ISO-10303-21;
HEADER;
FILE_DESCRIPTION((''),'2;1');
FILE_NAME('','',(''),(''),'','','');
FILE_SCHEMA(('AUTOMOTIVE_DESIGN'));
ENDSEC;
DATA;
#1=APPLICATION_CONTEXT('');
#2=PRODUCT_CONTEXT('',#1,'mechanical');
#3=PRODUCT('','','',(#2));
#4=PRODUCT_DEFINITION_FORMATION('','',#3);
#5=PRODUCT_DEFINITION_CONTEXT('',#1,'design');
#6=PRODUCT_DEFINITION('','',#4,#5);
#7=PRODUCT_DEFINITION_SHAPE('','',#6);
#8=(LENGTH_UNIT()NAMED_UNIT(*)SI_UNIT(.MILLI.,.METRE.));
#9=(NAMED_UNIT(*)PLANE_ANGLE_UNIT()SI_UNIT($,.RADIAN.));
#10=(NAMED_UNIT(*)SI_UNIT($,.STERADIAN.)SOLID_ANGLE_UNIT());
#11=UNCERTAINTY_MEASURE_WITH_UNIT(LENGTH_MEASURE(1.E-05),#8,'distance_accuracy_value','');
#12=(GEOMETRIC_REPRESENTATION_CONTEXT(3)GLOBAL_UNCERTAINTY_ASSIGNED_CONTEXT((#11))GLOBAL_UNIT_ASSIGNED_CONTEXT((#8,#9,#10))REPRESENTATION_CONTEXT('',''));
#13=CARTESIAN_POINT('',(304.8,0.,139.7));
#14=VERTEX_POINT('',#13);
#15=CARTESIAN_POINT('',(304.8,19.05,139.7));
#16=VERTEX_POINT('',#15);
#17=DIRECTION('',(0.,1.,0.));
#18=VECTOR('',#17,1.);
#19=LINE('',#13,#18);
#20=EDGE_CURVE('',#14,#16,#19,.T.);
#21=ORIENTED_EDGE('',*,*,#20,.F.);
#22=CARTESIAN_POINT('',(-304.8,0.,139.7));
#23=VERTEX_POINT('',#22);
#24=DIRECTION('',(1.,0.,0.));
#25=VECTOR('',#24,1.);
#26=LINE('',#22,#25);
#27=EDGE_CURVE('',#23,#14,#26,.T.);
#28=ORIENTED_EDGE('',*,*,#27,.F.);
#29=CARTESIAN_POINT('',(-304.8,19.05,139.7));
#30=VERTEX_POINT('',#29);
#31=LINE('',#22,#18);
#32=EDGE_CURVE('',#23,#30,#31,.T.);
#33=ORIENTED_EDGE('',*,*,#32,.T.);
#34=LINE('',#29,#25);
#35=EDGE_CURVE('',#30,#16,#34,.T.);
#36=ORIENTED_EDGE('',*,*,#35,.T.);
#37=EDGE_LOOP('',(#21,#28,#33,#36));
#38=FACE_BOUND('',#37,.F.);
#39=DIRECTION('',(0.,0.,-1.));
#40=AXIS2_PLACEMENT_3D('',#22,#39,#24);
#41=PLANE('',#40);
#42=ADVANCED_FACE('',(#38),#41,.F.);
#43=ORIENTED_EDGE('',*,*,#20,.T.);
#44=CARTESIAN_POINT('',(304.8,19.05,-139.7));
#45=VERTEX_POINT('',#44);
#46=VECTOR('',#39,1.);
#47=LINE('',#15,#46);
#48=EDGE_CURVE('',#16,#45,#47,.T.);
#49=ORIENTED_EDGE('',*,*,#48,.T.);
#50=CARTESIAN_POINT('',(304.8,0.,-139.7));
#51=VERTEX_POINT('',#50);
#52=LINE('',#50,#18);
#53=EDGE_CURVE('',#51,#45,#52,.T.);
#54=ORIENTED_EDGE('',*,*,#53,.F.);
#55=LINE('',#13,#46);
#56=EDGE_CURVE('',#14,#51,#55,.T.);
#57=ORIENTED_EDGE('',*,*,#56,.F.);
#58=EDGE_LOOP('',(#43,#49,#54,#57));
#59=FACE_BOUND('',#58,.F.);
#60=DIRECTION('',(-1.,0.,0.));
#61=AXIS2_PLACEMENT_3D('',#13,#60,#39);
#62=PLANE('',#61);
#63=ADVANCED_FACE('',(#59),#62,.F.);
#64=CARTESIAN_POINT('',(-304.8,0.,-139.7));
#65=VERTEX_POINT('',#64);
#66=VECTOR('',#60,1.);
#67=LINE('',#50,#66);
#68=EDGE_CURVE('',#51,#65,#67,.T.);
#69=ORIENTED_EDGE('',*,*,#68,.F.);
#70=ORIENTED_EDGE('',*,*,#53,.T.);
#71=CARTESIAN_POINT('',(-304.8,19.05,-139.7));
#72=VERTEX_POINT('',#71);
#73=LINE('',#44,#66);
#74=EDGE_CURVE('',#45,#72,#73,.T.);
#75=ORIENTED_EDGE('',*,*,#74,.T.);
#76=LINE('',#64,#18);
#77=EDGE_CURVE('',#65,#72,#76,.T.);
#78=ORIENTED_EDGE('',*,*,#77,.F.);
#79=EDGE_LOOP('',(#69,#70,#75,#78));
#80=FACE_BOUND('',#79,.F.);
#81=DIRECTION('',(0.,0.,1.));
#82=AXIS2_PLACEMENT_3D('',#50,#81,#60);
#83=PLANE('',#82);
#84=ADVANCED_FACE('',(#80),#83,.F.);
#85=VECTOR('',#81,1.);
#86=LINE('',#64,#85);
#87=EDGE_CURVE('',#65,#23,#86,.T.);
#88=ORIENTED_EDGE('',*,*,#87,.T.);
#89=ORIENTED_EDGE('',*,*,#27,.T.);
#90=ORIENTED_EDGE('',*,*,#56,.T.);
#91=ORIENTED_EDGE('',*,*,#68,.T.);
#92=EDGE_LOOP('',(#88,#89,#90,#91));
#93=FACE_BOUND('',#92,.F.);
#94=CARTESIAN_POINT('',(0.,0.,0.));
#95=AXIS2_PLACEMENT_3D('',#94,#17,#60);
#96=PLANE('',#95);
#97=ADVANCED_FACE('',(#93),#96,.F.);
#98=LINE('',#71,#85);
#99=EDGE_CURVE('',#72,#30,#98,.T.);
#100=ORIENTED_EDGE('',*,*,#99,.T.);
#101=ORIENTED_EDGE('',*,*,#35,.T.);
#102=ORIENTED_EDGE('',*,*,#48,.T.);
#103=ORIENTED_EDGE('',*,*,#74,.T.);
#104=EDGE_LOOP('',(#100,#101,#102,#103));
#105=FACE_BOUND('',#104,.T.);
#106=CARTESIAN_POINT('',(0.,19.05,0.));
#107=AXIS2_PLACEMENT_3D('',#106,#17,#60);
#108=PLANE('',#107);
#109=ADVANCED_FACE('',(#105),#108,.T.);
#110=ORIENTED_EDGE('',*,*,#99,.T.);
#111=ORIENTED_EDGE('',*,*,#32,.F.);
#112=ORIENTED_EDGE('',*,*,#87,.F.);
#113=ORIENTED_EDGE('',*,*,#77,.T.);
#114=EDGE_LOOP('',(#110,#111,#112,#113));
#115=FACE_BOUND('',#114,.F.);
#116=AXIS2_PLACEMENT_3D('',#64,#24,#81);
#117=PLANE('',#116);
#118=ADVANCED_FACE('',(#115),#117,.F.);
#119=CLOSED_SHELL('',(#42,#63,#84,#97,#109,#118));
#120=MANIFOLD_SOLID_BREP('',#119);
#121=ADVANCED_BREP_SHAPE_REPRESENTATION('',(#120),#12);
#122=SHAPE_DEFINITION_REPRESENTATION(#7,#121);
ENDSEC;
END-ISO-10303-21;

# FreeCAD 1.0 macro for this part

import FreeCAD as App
import Part
import Sketcher
from FreeCAD import Vector
Q = App.Units.Quantity

doc = App.newDocument("Part")
body = doc.addObject("PartDesign::Body", "Body")

# Sketch on XZ plane
sketch1 = body.newObject("Sketcher::SketchObject", "Sketch")
sketch1.AttachmentSupport = (doc.getObject("XZ_Plane"), [""])
sketch1.MapMode = "FlatFace"
sketch1.addGeometry([
    Part.LineSegment(Vector(-305, -140, 0), Vector(-305, 140, 0)),
    Part.LineSegment(Vector(-305, 140, 0), Vector(305, 140, 0)),
    Part.LineSegment(Vector(305, 140, 0), Vector(305, -140, 0)),
    Part.LineSegment(Vector(305, -140, 0), Vector(-305, -140, 0)),
], False)
sketch1.addConstraint([
    Sketcher.Constraint("Coincident", 0, 2, 1, 1),
    Sketcher.Constraint("Coincident", 1, 2, 2, 1),
    Sketcher.Constraint("Coincident", 2, 2, 3, 1),
    Sketcher.Constraint("Coincident", 3, 2, 0, 1),
    Sketcher.Constraint("Vertical", 0),
    Sketcher.Constraint("Horizontal", 1),
    Sketcher.Constraint("Vertical", 2),
    Sketcher.Constraint("Horizontal", 3),
    Sketcher.Constraint("Symmetric", 0, 2, 2, 2, -1, 1),
    Sketcher.Constraint("DistanceX", 1, 1, 1, 2, Q("24 in")),
    Sketcher.Constraint("DistanceY", 0, 1, 0, 2, Q("11 in")),
])
pad1 = body.newObject("PartDesign::Pad", "Pad")
pad1.Profile = sketch1
pad1.Length = Q("0.75 in")
pad1.Reversed = True

doc.recompute()
